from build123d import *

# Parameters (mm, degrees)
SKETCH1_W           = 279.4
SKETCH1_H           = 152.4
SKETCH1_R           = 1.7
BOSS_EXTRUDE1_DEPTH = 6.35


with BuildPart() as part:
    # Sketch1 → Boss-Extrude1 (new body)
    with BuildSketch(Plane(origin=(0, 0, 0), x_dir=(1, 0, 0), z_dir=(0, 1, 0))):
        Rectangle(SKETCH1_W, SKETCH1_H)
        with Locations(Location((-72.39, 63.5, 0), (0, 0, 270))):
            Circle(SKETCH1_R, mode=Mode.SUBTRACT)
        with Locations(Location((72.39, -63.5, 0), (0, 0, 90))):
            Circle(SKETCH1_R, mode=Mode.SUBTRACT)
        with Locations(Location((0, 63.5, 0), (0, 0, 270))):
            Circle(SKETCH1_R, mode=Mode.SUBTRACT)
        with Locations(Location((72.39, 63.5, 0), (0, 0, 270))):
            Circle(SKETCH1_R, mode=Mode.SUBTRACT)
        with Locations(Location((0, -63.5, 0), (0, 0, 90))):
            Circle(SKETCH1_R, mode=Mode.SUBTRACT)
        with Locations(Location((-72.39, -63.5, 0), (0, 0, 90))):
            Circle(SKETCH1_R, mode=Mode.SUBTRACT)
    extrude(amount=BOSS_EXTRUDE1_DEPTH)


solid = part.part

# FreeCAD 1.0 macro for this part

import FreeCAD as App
import Part
import Sketcher
from FreeCAD import Vector
Q = App.Units.Quantity

doc = App.newDocument("Part")
body = doc.addObject("PartDesign::Body", "Body")

sketch1 = doc.addObject("Sketcher::SketchObject", "Sketch")
body.addObject(sketch1)
sketch1.AttachmentSupport = (doc.XZ_Plane, [""])
sketch1.MapMode = "FlatFace"
sketch1.addGeometry([
    Part.LineSegment(Vector(-139.7, -76.2, 0), Vector(-139.7, 76.2, 0)),
    Part.LineSegment(Vector(-139.7, 76.2, 0), Vector(139.7, 76.2, 0)),
    Part.LineSegment(Vector(139.7, 76.2, 0), Vector(139.7, -76.2, 0)),
    Part.LineSegment(Vector(139.7, -76.2, 0), Vector(-139.7, -76.2, 0)),
    Part.Circle(Vector(-72.4, 63.5, 0), Vector(0, 0, 1), 1.7),
    Part.Circle(Vector(0, 63.5, 0), Vector(0, 0, 1), 1.7),
    Part.Circle(Vector(72.4, 63.5, 0), Vector(0, 0, 1), 1.7),
    Part.Circle(Vector(-72.4, -63.5, 0), Vector(0, 0, 1), 1.7),
    Part.Circle(Vector(0, -63.5, 0), Vector(0, 0, 1), 1.7),
    Part.Circle(Vector(72.4, -63.5, 0), Vector(0, 0, 1), 1.7),
], False)
sketch1.addConstraint([
    Sketcher.Constraint("Coincident", 0, 2, 1, 1),
    Sketcher.Constraint("Coincident", 1, 2, 2, 1),
    Sketcher.Constraint("Coincident", 2, 2, 3, 1),
    Sketcher.Constraint("Coincident", 3, 2, 0, 1),
    Sketcher.Constraint("Vertical", 0),
    Sketcher.Constraint("Horizontal", 1),
    Sketcher.Constraint("Vertical", 2),
    Sketcher.Constraint("Horizontal", 3),
    Sketcher.Constraint("Equal", 4, 5),
    Sketcher.Constraint("Equal", 5, 6),
    Sketcher.Constraint("Equal", 6, 7),
    Sketcher.Constraint("Equal", 7, 8),
    Sketcher.Constraint("Equal", 8, 9),
    Sketcher.Constraint("Symmetric", 6, 3, 7, 3, -1, 1),
    Sketcher.Constraint("Symmetric", 5, 3, 8, 3, -1, 1),
    Sketcher.Constraint("Symmetric", 4, 3, 9, 3, -1, 1),
    Sketcher.Constraint("Symmetric", 0, 2, 2, 2, -1, 1),
    Sketcher.Constraint("Symmetric", 4, 3, 6, 3, -2),
    Sketcher.Constraint("PointOnObject", 5, 3, -2),
    Sketcher.Constraint("Horizontal", 4, 3, 5, 3),
    Sketcher.Constraint("DistanceX", 1, 1, 1, 2, Q("11 in")),
    Sketcher.Constraint("DistanceY", 0, 1, 0, 2, Q("6 in")),
    Sketcher.Constraint("DistanceY", 7, 3, 4, 3, Q("5 in")),
    Sketcher.Constraint("DistanceX", 4, 3, 6, 3, Q("5.7 in")),
    Sketcher.Constraint("Diameter", 4, 3.4),
])
pad1 = doc.addObject("PartDesign::Pad", "Pad")
body.addObject(pad1)
pad1.Profile = sketch1
pad1.Length = Q("0.25 in")
pad1.Reversed = True

doc.recompute()
